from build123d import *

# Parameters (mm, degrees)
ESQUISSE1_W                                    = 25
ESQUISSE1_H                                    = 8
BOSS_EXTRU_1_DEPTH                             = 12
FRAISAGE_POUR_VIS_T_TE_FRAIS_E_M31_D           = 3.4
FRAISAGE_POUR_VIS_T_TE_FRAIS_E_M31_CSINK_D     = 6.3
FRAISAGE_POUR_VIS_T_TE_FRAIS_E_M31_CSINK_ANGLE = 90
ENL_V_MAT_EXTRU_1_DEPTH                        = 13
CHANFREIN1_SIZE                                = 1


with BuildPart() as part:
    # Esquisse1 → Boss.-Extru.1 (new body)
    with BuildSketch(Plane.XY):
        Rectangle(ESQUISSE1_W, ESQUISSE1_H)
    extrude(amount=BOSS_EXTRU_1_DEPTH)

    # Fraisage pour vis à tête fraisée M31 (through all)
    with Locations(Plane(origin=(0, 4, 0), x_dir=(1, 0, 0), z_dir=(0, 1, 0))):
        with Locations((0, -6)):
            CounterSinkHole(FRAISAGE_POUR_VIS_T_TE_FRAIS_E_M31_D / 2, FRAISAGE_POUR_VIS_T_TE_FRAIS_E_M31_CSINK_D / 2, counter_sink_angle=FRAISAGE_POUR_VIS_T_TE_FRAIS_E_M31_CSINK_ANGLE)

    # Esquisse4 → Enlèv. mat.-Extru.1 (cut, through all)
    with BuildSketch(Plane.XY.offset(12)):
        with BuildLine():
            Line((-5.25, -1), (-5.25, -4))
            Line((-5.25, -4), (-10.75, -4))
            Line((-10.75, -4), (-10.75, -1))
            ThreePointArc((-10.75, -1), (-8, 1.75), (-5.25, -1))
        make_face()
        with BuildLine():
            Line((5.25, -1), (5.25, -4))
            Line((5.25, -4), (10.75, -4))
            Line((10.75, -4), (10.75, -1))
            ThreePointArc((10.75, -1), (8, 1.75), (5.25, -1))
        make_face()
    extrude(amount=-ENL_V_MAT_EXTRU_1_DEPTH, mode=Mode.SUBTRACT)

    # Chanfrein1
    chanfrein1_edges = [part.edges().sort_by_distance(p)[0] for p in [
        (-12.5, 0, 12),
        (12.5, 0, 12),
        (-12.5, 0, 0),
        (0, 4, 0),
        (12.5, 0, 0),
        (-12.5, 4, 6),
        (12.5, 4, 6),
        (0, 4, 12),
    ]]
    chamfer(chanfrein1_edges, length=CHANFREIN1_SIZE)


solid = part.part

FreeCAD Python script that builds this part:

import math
import FreeCAD as App
import Part
import Sketcher
Q = App.Units.Quantity


def edges_at(feature, points):
    """Names of the edges that pass closest to the given points."""
    edges = feature.Shape.Edges
    near = lambda p: min(range(len(edges)), key=lambda i: edges[i].distToShape(Part.Vertex(*p))[0])
    return sorted({f"Edge{near(p) + 1}" for p in points})


def add_polygon(sketch, points):
    """Adds a closed chain of lines whose ends are joined by coincident constraints."""
    first, n = sketch.GeometryCount, len(points)
    for a, b in zip(points, points[1:] + points[:1]):
        sketch.addGeometry(Part.LineSegment(App.Vector(*a, 0), App.Vector(*b, 0)), False)
    for i in range(n):
        sketch.addConstraint(Sketcher.Constraint("Coincident", first + i, 2, first + (i + 1) % n, 1))

doc = App.newDocument("Part")
params = doc.addObject("Spreadsheet::Sheet", "Params")
for row, (alias, value) in enumerate([
    ("sketch1_width", "25 mm"),
    ("sketch1_height", "8 mm"),
    ("pad1_length", "12 mm"),
    ("sketch2_diameter", "3.4 mm"),
    ("hole_diameter", "3.4 mm"),
    ("hole_csink_diameter", "6.3 mm"),
    ("sketch3_height", "3 mm"),
    ("sketch3_radius", "2.75 mm"),
    ("chamfer_size", "1 mm"),
], start=1):
    params.set(f"A{row}", alias)
    params.set(f"B{row}", "=" + value)
    params.setAlias(f"B{row}", alias)

body = doc.addObject("PartDesign::Body", "Body")

# Sketch on XY plane
sketch1 = doc.addObject("Sketcher::SketchObject", "Sketch")
body.addObject(sketch1)
sketch1.AttachmentSupport = (doc.XY_Plane, [""])
sketch1.MapMode = "FlatFace"
add_polygon(sketch1, [(-12, 4), (-12, -4), (12, -4), (12, 4)])  # lines 0-3
sketch1.addConstraint([
    Sketcher.Constraint("Vertical", 0),
    Sketcher.Constraint("Horizontal", 1),
    Sketcher.Constraint("Vertical", 2),
    Sketcher.Constraint("Horizontal", 3),
    Sketcher.Constraint("Symmetric", 0, 2, 2, 2, -1, 1),
    Sketcher.Constraint("DistanceX", 1, 1, 1, 2, Q("25 mm")),
    Sketcher.Constraint("DistanceY", 0, 2, 0, 1, Q("8 mm")),
])
sketch1.setExpression("Constraints[9]", "Params.sketch1_width")
sketch1.setExpression("Constraints[10]", "Params.sketch1_height")
pad1 = doc.addObject("PartDesign::Pad", "Pad")
body.addObject(pad1)
pad1.Profile = sketch1
pad1.setExpression("Length", "Params.pad1_length")

# Sketch on XZ plane
sketch2 = doc.addObject("Sketcher::SketchObject", "Sketch001")
body.addObject(sketch2)
sketch2.AttachmentSupport = (doc.XZ_Plane, [""])
sketch2.MapMode = "FlatFace"
sketch2.AttachmentOffset = App.Placement(App.Vector(0, 0, -4), App.Rotation())
sketch2.addGeometry(Part.Circle(App.Vector(0, 6, 0), App.Vector(0, 0, 1), 1.7), False)
sketch2.addConstraint([
    Sketcher.Constraint("PointOnObject", 0, 3, -2),
    Sketcher.Constraint("Diameter", 0, Q("3.4 mm")),
    Sketcher.Constraint("DistanceY", -1, 1, 0, 3, Q("6 mm")),
])
sketch2.setExpression("Constraints[1]", "Params.sketch2_diameter")
doc.recompute()
hole = doc.addObject("PartDesign::Hole", "Hole")
body.addObject(hole)
hole.Profile = sketch2
hole.ThreadType = "None"
hole.setExpression("Diameter", "Params.hole_diameter")
hole.DepthType = "ThroughAll"
hole.HoleCutType = "Countersink"
hole.setExpression("HoleCutDiameter", "Params.hole_csink_diameter")
hole.HoleCutCountersinkAngle = 90
hole.Reversed = True

# Sketch on XY plane
sketch3 = doc.addObject("Sketcher::SketchObject", "Sketch002")
body.addObject(sketch3)
sketch3.AttachmentSupport = (doc.XY_Plane, [""])
sketch3.MapMode = "FlatFace"
sketch3.AttachmentOffset = App.Placement(App.Vector(0, 0, 12), App.Rotation())
sketch3.addGeometry([
    Part.LineSegment(App.Vector(-5.2, -4, 0), App.Vector(-5.2, -1, 0)),  # 0
    Part.ArcOfCircle(Part.Circle(App.Vector(-8, -1, 0), App.Vector(0, 0, 1), 2.8), math.radians(0), math.radians(180)),  # 1
    Part.LineSegment(App.Vector(-10.8, -1, 0), App.Vector(-10.8, -4, 0)),  # 2
    Part.LineSegment(App.Vector(-10.8, -4, 0), App.Vector(-5.2, -4, 0)),  # 3
    Part.LineSegment(App.Vector(5.2, -1, 0), App.Vector(5.2, -4, 0)),  # 4
    Part.LineSegment(App.Vector(5.2, -4, 0), App.Vector(10.8, -4, 0)),  # 5
    Part.LineSegment(App.Vector(10.8, -4, 0), App.Vector(10.8, -1, 0)),  # 6
    Part.ArcOfCircle(Part.Circle(App.Vector(8, -1, 0), App.Vector(0, 0, 1), 2.8), math.radians(0), math.radians(180)),  # 7
], False)
sketch3.addConstraint([
    Sketcher.Constraint("Tangent", 0, 2, 1, 1),
    Sketcher.Constraint("Tangent", 1, 2, 2, 1),
    Sketcher.Constraint("Coincident", 2, 2, 3, 1),
    Sketcher.Constraint("Coincident", 3, 2, 0, 1),
    Sketcher.Constraint("Coincident", 4, 2, 5, 1),
    Sketcher.Constraint("Coincident", 5, 2, 6, 1),
    Sketcher.Constraint("Tangent", 6, 2, 7, 1),
    Sketcher.Constraint("Tangent", 7, 2, 4, 1),
    Sketcher.Constraint("Vertical", 0),
    Sketcher.Constraint("Vertical", 2),
    Sketcher.Constraint("Horizontal", 3),
    Sketcher.Constraint("Vertical", 4),
    Sketcher.Constraint("Horizontal", 5),
    Sketcher.Constraint("Vertical", 6),
    Sketcher.Constraint("Equal", 1, 7),
    Sketcher.Constraint("Symmetric", 1, 3, 7, 3, -2),
    Sketcher.Constraint("Horizontal", 3, 2, 4, 2),
    Sketcher.Constraint("DistanceY", 0, 1, 0, 2, Q("3 mm")),
    Sketcher.Constraint("Radius", 1, Q("2.75 mm")),
    Sketcher.Constraint("DistanceX", 1, 3, -1, 1, Q("8 mm")),
    Sketcher.Constraint("DistanceY", 1, 3, -1, 1, Q("1 mm")),
])
sketch3.setExpression("Constraints[17]", "Params.sketch3_height")
sketch3.setExpression("Constraints[18]", "Params.sketch3_radius")
pocket1 = doc.addObject("PartDesign::Pocket", "Pocket")
body.addObject(pocket1)
pocket1.Profile = sketch3
pocket1.Type = "ThroughAll"
doc.recompute()

chamfer = doc.addObject("PartDesign::Chamfer", "Chamfer")
body.addObject(chamfer)
chamfer.Base = (pocket1, edges_at(pocket1, [
    (-12.5, 0, 12),
    (12.5, 0, 12),
    (-12.5, 0, 0),
    (0, 4, 0),
    (12.5, 0, 0),
    (-12.5, 4, 6),
    (12.5, 4, 6),
    (0, 4, 12),
]))
chamfer.setExpression("Size", "Params.chamfer_size")

doc.recompute()
